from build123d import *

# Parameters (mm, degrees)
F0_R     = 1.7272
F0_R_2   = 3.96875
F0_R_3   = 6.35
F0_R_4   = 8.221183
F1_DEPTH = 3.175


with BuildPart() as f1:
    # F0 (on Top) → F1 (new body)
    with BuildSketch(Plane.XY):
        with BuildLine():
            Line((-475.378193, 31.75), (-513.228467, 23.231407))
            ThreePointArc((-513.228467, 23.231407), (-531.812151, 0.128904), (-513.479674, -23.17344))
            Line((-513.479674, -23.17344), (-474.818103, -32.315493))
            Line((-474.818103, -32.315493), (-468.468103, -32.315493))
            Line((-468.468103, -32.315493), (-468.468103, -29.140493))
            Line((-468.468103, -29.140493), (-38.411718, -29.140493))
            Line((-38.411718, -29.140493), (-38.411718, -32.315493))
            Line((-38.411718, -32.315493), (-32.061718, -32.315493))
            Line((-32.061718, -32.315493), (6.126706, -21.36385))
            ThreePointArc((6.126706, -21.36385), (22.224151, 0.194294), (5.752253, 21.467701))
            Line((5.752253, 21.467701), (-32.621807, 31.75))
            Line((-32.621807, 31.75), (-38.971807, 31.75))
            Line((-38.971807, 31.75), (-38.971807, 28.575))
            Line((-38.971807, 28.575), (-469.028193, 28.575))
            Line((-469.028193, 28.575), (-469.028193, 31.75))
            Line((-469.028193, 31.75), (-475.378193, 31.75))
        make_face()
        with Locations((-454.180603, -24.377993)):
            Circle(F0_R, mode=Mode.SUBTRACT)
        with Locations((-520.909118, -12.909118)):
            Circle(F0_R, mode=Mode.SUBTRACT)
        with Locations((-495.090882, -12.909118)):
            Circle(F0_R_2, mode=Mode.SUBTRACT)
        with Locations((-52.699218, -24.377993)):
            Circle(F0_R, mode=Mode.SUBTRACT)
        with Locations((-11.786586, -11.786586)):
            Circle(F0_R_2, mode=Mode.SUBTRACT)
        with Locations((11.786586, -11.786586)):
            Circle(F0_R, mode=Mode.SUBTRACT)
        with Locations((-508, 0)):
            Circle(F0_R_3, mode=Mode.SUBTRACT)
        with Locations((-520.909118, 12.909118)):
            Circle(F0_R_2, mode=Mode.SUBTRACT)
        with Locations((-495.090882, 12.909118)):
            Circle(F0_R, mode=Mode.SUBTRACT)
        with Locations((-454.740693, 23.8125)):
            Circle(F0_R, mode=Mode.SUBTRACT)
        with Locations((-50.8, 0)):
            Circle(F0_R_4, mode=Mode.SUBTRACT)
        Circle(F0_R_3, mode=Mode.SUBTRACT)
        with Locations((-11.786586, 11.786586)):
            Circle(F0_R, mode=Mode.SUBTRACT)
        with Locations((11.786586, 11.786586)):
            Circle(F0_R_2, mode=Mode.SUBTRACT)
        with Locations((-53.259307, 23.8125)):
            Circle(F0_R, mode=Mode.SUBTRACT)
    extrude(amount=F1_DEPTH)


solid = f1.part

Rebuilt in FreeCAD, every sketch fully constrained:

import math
import FreeCAD as App
import Part
import Sketcher
Q = App.Units.Quantity

doc = App.newDocument("Part")
params = doc.addObject("Spreadsheet::Sheet", "Params")
for row, (alias, value) in enumerate([
    ("sketch1_diameter", "0.5 in"),
    ("sketch1_diameter2", "0.136 in"),
    ("sketch1_diameter3", "0.3125 in"),
    ("sketch1_radius", "0.9375 in"),
    ("sketch1_radius2", "0.875 in"),
    ("pad1_length", "0.125 in"),
], start=1):
    params.set(f"A{row}", alias)
    params.set(f"B{row}", "=" + value)
    params.setAlias(f"B{row}", alias)

body = doc.addObject("PartDesign::Body", "Body")

# Sketch on XY plane
sketch1 = body.newObject("Sketcher::SketchObject", "Sketch")
sketch1.AttachmentSupport = (doc.getObject("XY_Plane"), [""])
sketch1.MapMode = "FlatFace"
sketch1.addGeometry([
    Part.LineSegment(App.Vector(-475.378193, 31.75, 0), App.Vector(-513.228467, 23.231407, 0)),  # 0
    Part.ArcOfCircle(Part.Circle(App.Vector(-508, 0, 0), App.Vector(0, 0, 1), 23.8125), math.radians(102.68367), math.radians(256.696008)),  # 1
    Part.LineSegment(App.Vector(-513.479674, -23.17344, 0), App.Vector(-474.818103, -32.315493, 0)),  # 2
    Part.LineSegment(App.Vector(-474.818103, -32.315493, 0), App.Vector(-468.468103, -32.315493, 0)),  # 3
    Part.LineSegment(App.Vector(-468.468103, -32.315493, 0), App.Vector(-468.468103, -29.140493, 0)),  # 4
    Part.LineSegment(App.Vector(-468.468103, -29.140493, 0), App.Vector(-38.411718, -29.140493, 0)),  # 5
    Part.LineSegment(App.Vector(-38.411718, -29.140493, 0), App.Vector(-38.411718, -32.315493, 0)),  # 6
    Part.LineSegment(App.Vector(-38.411718, -32.315493, 0), App.Vector(-32.061718, -32.315493, 0)),  # 7
    Part.LineSegment(App.Vector(-32.061718, -32.315493, 0), App.Vector(6.126706, -21.36385, 0)),  # 8
    Part.ArcOfCircle(Part.Circle(App.Vector(0.000001, 0, 0), App.Vector(0, 0, 1), 22.224999), math.radians(-73.998217), math.radians(75.000003)),  # 9
    Part.LineSegment(App.Vector(5.752253, 21.467701, 0), App.Vector(-32.621807, 31.75, 0)),  # 10
    Part.LineSegment(App.Vector(-32.621807, 31.75, 0), App.Vector(-38.971807, 31.75, 0)),  # 11
    Part.LineSegment(App.Vector(-38.971807, 31.75, 0), App.Vector(-38.971807, 28.575, 0)),  # 12
    Part.LineSegment(App.Vector(-38.971807, 28.575, 0), App.Vector(-469.028193, 28.575, 0)),  # 13
    Part.LineSegment(App.Vector(-469.028193, 28.575, 0), App.Vector(-469.028193, 31.75, 0)),  # 14
    Part.LineSegment(App.Vector(-469.028193, 31.75, 0), App.Vector(-475.378193, 31.75, 0)),  # 15
    Part.Circle(App.Vector(-454.180603, -24.377993, 0), App.Vector(0, 0, 1), 1.7272),  # 16
    Part.Circle(App.Vector(-520.909118, -12.909118, 0), App.Vector(0, 0, 1), 1.7272),  # 17
    Part.Circle(App.Vector(-495.090882, -12.909118, 0), App.Vector(0, 0, 1), 3.96875),  # 18
    Part.Circle(App.Vector(-52.699218, -24.377993, 0), App.Vector(0, 0, 1), 1.7272),  # 19
    Part.Circle(App.Vector(-11.786586, -11.786586, 0), App.Vector(0, 0, 1), 3.96875),  # 20
    Part.Circle(App.Vector(11.786586, -11.786586, 0), App.Vector(0, 0, 1), 1.7272),  # 21
    Part.Circle(App.Vector(-508, 0, 0), App.Vector(0, 0, 1), 6.35),  # 22
    Part.Circle(App.Vector(-520.909118, 12.909118, 0), App.Vector(0, 0, 1), 3.96875),  # 23
    Part.Circle(App.Vector(-495.090882, 12.909118, 0), App.Vector(0, 0, 1), 1.7272),  # 24
    Part.Circle(App.Vector(-454.740693, 23.8125, 0), App.Vector(0, 0, 1), 1.7272),  # 25
    Part.Circle(App.Vector(-50.8, 0, 0), App.Vector(0, 0, 1), 8.221183),  # 26
    Part.Circle(App.Vector(0, 0, 0), App.Vector(0, 0, 1), 6.35),  # 27
    Part.Circle(App.Vector(-11.786586, 11.786586, 0), App.Vector(0, 0, 1), 1.7272),  # 28
    Part.Circle(App.Vector(11.786586, 11.786586, 0), App.Vector(0, 0, 1), 3.96875),  # 29
    Part.Circle(App.Vector(-53.259307, 23.8125, 0), App.Vector(0, 0, 1), 1.7272),  # 30
], False)
sketch1.addConstraint([
    Sketcher.Constraint("Tangent", 0, 2, 1, 1),
    Sketcher.Constraint("Tangent", 1, 2, 2, 1),
    Sketcher.Constraint("Coincident", 2, 2, 3, 1),
    Sketcher.Constraint("Coincident", 3, 2, 4, 1),
    Sketcher.Constraint("Coincident", 4, 2, 5, 1),
    Sketcher.Constraint("Coincident", 5, 2, 6, 1),
    Sketcher.Constraint("Coincident", 6, 2, 7, 1),
    Sketcher.Constraint("Coincident", 7, 2, 8, 1),
    Sketcher.Constraint("Tangent", 8, 2, 9, 1),
    Sketcher.Constraint("Tangent", 9, 2, 10, 1),
    Sketcher.Constraint("Coincident", 10, 2, 11, 1),
    Sketcher.Constraint("Coincident", 11, 2, 12, 1),
    Sketcher.Constraint("Coincident", 12, 2, 13, 1),
    Sketcher.Constraint("Coincident", 13, 2, 14, 1),
    Sketcher.Constraint("Coincident", 14, 2, 15, 1),
    Sketcher.Constraint("Coincident", 15, 2, 0, 1),
    Sketcher.Constraint("Horizontal", 3),
    Sketcher.Constraint("Vertical", 4),
    Sketcher.Constraint("Horizontal", 5),
    Sketcher.Constraint("Vertical", 6),
    Sketcher.Constraint("Horizontal", 7),
    Sketcher.Constraint("Horizontal", 11),
    Sketcher.Constraint("Vertical", 12),
    Sketcher.Constraint("Horizontal", 13),
    Sketcher.Constraint("Vertical", 14),
    Sketcher.Constraint("Horizontal", 15),
    Sketcher.Constraint("Coincident", 9, 3, -1, 1),
    Sketcher.Constraint("Coincident", 27, 3, -1, 1),
    Sketcher.Constraint("Coincident", 22, 3, 1, 3),
    Sketcher.Constraint("Equal", 16, 17),
    Sketcher.Constraint("Equal", 17, 19),
    Sketcher.Constraint("Equal", 18, 20),
    Sketcher.Constraint("Equal", 19, 21),
    Sketcher.Constraint("Equal", 20, 23),
    Sketcher.Constraint("Equal", 21, 24),
    Sketcher.Constraint("Equal", 24, 25),
    Sketcher.Constraint("Equal", 22, 27),
    Sketcher.Constraint("Equal", 25, 28),
    Sketcher.Constraint("Equal", 23, 29),
    Sketcher.Constraint("Equal", 28, 30),
    Sketcher.Constraint("Symmetric", 21, 3, 28, 3, -1, 1),
    Sketcher.Constraint("Symmetric", 20, 3, 29, 3, -1, 1),
    Sketcher.Constraint("Symmetric", 20, 3, 21, 3, -2),
    Sketcher.Constraint("Symmetric", 17, 3, 23, 3, -1),
    Sketcher.Constraint("Symmetric", 18, 3, 24, 3, -1),
    Sketcher.Constraint("PointOnObject", 1, 3, -1),
    Sketcher.Constraint("PointOnObject", 26, 3, -1),
    Sketcher.Constraint("Horizontal", 17, 3, 18, 3),
    Sketcher.Constraint("Horizontal", 16, 3, 19, 3),
    Sketcher.Constraint("Horizontal", 25, 3, 30, 3),
    Sketcher.Constraint("Horizontal", 3, 2, 6, 2),
    Sketcher.Constraint("Horizontal", 11, 2, 14, 2),
    Sketcher.Constraint("Equal", 3, 7),
    Sketcher.Constraint("Equal", 7, 11),
    Sketcher.Constraint("Equal", 5, 13),
    Sketcher.Constraint("Equal", 11, 15),
    Sketcher.Constraint("Equal", 6, 12),
    Sketcher.Constraint("Equal", 2, 8),
    Sketcher.Constraint("Equal", 8, 10),
    Sketcher.Constraint("Diameter", 22, Q("0.5 in")),
    Sketcher.Constraint("Diameter", 16, Q("0.136 in")),
    Sketcher.Constraint("Diameter", 18, Q("0.3125 in")),
    Sketcher.Constraint("DistanceX", 1, 3, -1, 1, Q("20 in")),
    Sketcher.Constraint("DistanceX", 26, 3, -1, 1, Q("2 in")),
    Sketcher.Constraint("Angle", 10, Q("164.999999 deg")),
    Sketcher.Constraint("Radius", 1, Q("0.9375 in")),
    Sketcher.Constraint("Radius", 9, Q("0.875 in")),
    Sketcher.Constraint("DistanceX", 3, 1, 3, 2, Q("0.25 in")),
    Sketcher.Constraint("DistanceY", 4, 1, 4, 2, Q("0.125 in")),
    Sketcher.Constraint("DistanceY", -1, 1, 10, 2, Q("1.25 in")),
    Sketcher.Constraint("DistanceY", -1, 1, 25, 3, Q("0.9375 in")),
    Sketcher.Constraint("DistanceX", 2, 2, 16, 3, Q("0.8125 in")),
    Sketcher.Constraint("DistanceY", 2, 2, 16, 3, Q("0.3125 in")),
    Sketcher.Constraint("DistanceX", 19, 3, 5, 2, Q("0.5625 in")),
    Sketcher.Constraint("DistanceX", 30, 3, 10, 2, Q("0.8125 in")),
    Sketcher.Constraint("DistanceX", 13, 2, 25, 3, Q("0.5625 in")),
    Sketcher.Constraint("Diameter", 26, 16.442366),
    Sketcher.Constraint("DistanceX", 17, 3, 19, 3, 468.2099),
    Sketcher.Constraint("Distance", 0, 38.797032),
    Sketcher.Constraint("DistanceX", 18, 3, -1, 1, 495.090882),
    Sketcher.Constraint("DistanceY", 18, 3, 20, 3, 1.122532),
    Sketcher.Constraint("DistanceX", 20, 3, 21, 3, 23.573172),
    Sketcher.Constraint("DistanceY", 1, 3, 23, 3, 12.909118),
])
sketch1.setExpression("Constraints[59]", "Params.sketch1_diameter")
sketch1.setExpression("Constraints[60]", "Params.sketch1_diameter2")
sketch1.setExpression("Constraints[61]", "Params.sketch1_diameter3")
sketch1.setExpression("Constraints[65]", "Params.sketch1_radius")
sketch1.setExpression("Constraints[66]", "Params.sketch1_radius2")
pad1 = body.newObject("PartDesign::Pad", "Pad")
pad1.Profile = sketch1
pad1.setExpression("Length", "Params.pad1_length")

doc.recompute()
